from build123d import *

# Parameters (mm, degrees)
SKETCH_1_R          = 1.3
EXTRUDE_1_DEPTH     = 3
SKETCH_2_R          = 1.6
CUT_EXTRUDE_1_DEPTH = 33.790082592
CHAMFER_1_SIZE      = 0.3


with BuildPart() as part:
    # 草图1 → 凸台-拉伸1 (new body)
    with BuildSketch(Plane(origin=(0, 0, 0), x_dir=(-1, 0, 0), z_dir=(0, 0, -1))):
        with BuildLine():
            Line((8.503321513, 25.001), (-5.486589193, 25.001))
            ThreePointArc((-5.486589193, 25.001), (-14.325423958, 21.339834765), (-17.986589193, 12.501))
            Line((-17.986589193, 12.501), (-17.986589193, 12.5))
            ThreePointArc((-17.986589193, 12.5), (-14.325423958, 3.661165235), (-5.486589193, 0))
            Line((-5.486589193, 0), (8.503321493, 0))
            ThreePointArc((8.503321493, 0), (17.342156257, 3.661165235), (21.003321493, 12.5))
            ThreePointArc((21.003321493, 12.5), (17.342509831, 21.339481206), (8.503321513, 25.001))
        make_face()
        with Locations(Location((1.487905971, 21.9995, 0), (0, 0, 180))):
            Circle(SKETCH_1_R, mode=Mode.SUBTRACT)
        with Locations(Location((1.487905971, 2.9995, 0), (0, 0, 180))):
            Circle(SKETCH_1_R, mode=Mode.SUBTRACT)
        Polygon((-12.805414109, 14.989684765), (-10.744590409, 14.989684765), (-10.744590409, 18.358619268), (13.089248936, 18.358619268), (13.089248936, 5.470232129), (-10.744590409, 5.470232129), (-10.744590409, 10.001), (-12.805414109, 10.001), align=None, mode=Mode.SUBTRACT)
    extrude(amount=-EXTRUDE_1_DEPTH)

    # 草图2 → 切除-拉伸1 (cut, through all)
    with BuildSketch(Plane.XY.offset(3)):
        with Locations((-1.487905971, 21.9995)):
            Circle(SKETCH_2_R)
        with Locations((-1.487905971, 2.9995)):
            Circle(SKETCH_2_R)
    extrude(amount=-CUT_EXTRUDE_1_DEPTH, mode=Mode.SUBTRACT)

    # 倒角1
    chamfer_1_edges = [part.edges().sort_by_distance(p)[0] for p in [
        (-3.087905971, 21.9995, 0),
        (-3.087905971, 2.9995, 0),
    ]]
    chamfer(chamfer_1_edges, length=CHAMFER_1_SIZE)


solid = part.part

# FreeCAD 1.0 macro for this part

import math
import FreeCAD as App
import Part
import Sketcher

V = App.Vector


def edges_at(feature, points):
    """Names of the edges that pass closest to the given points."""
    edges = feature.Shape.Edges
    near = lambda p: min(range(len(edges)), key=lambda i: edges[i].distToShape(Part.Vertex(*p))[0])
    return sorted({f"Edge{near(p) + 1}" for p in points})

doc = App.newDocument("Part")
params = doc.addObject("Spreadsheet::Sheet", "Params")
for row, (alias, value) in enumerate([
    ("sketch1_diameter", "2.6 mm"),
    ("sketch1_radius", "12.5 mm"),
    ("pad1_length", "3 mm"),
    ("sketch2_diameter", "3.2 mm"),
    ("chamfer_size", "0.3 mm"),
], start=1):
    params.set(f"A{row}", alias)
    params.set(f"B{row}", "=" + value)
    params.setAlias(f"B{row}", alias)

body = doc.addObject("PartDesign::Body", "Body")

# Sketch on XY plane
sketch1 = body.newObject("Sketcher::SketchObject", "Sketch")
sketch1.AttachmentSupport = (doc.getObject("XY_Plane"), [""])
sketch1.MapMode = "FlatFace"
sketch1.addGeometry([
    Part.LineSegment(V(-8.503322, 25.001, 0), V(5.486589, 25.001, 0)),  # 0
    Part.ArcOfCircle(Part.Circle(V(5.486589, 12.501, 0), V(0, 0, 1), 12.5), math.radians(0), math.radians(90)),  # 1
    Part.LineSegment(V(17.986589, 12.501, 0), V(17.986589, 12.5, 0)),  # 2
    Part.ArcOfCircle(Part.Circle(V(5.486589, 12.5, 0), V(0, 0, 1), 12.5), math.radians(-90), math.radians(0)),  # 3
    Part.LineSegment(V(5.486589, 0, 0), V(-8.503321, 0, 0)),  # 4
    Part.ArcOfCircle(Part.Circle(V(-8.503321, 12.5, 0), V(0, 0, 1), 12.5), math.radians(-180), math.radians(-90)),  # 5
    Part.ArcOfCircle(Part.Circle(V(-8.503322, 12.501, 0), V(0, 0, 1), 12.5), math.radians(90), math.radians(180.004584)),  # 6
    Part.Circle(V(-1.487906, 2.9995, 0), V(0, 0, 1), 1.3),  # 7
    Part.LineSegment(V(12.805414, 10.001, 0), V(12.805414, 14.989685, 0)),  # 8
    Part.LineSegment(V(12.805414, 14.989685, 0), V(10.74459, 14.989685, 0)),  # 9
    Part.LineSegment(V(10.74459, 14.989685, 0), V(10.74459, 18.358619, 0)),  # 10
    Part.LineSegment(V(10.74459, 18.358619, 0), V(-13.089249, 18.358619, 0)),  # 11
    Part.LineSegment(V(-13.089249, 18.358619, 0), V(-13.089249, 5.470232, 0)),  # 12
    Part.LineSegment(V(-13.089249, 5.470232, 0), V(10.74459, 5.470232, 0)),  # 13
    Part.LineSegment(V(10.74459, 5.470232, 0), V(10.74459, 10.001, 0)),  # 14
    Part.LineSegment(V(10.74459, 10.001, 0), V(12.805414, 10.001, 0)),  # 15
    Part.Circle(V(-1.487906, 21.9995, 0), V(0, 0, 1), 1.3),  # 16
], False)
sketch1.addConstraint([
    Sketcher.Constraint("Tangent", 0, 2, 1, 2),
    Sketcher.Constraint("Tangent", 1, 1, 2, 1),
    Sketcher.Constraint("Coincident", 2, 2, 3, 2),
    Sketcher.Constraint("Tangent", 3, 1, 4, 1),
    Sketcher.Constraint("Tangent", 4, 2, 5, 2),
    Sketcher.Constraint("Coincident", 5, 1, 6, 2),
    Sketcher.Constraint("Tangent", 6, 1, 0, 1),
    Sketcher.Constraint("Coincident", 8, 2, 9, 1),
    Sketcher.Constraint("Coincident", 9, 2, 10, 1),
    Sketcher.Constraint("Coincident", 10, 2, 11, 1),
    Sketcher.Constraint("Coincident", 11, 2, 12, 1),
    Sketcher.Constraint("Coincident", 12, 2, 13, 1),
    Sketcher.Constraint("Coincident", 13, 2, 14, 1),
    Sketcher.Constraint("Coincident", 14, 2, 15, 1),
    Sketcher.Constraint("Coincident", 15, 2, 8, 1),
    Sketcher.Constraint("Horizontal", 0),
    Sketcher.Constraint("Horizontal", 4),
    Sketcher.Constraint("Vertical", 8),
    Sketcher.Constraint("Horizontal", 9),
    Sketcher.Constraint("Vertical", 10),
    Sketcher.Constraint("Horizontal", 11),
    Sketcher.Constraint("Vertical", 12),
    Sketcher.Constraint("Horizontal", 13),
    Sketcher.Constraint("Vertical", 14),
    Sketcher.Constraint("Horizontal", 15),
    Sketcher.Constraint("Equal", 1, 3),
    Sketcher.Constraint("Equal", 3, 5),
    Sketcher.Constraint("Equal", 5, 6),
    Sketcher.Constraint("Equal", 7, 16),
    Sketcher.Constraint("PointOnObject", 3, 1, -1),
    Sketcher.Constraint("Horizontal", 6, 3, 1, 1),
    Sketcher.Constraint("Horizontal", 5, 3, 2, 2),
    Sketcher.Constraint("Horizontal", 2, 2, 5, 1),
    Sketcher.Constraint("Vertical", 7, 3, 16, 3),
    Sketcher.Constraint("Vertical", 10, 2, 13, 2),
    Sketcher.Constraint("Diameter", 7, 2.6),
    Sketcher.Constraint("Radius", 1, 12.5),
    Sketcher.Constraint("DistanceY", 7, 3, 16, 3, 19.0),
    Sketcher.Constraint("DistanceY", 14, 2, 1, 3, 2.5),
    Sketcher.Constraint("DistanceY", 2, 2, 2, 1, 0.001),
    Sketcher.Constraint("DistanceX", 1, 3, 9, 2, 5.258001),
    Sketcher.Constraint("DistanceX", 0, 1, 0, 2, 13.989911),
    Sketcher.Constraint("DistanceX", 11, 2, 11, 1, 23.833839),
    Sketcher.Constraint("DistanceY", -1, 1, 7, 3, 2.9995),
    Sketcher.Constraint("DistanceX", 9, 2, 9, 1, 2.060824),
    Sketcher.Constraint("DistanceY", 8, 1, 8, 2, 4.988685),
    Sketcher.Constraint("DistanceY", 10, 1, 10, 2, 3.368935),
    Sketcher.Constraint("DistanceY", 12, 2, 12, 1, 12.888387),
    Sketcher.Constraint("DistanceX", -1, 1, 1, 3, 5.486589),
    Sketcher.Constraint("DistanceX", 7, 3, -1, 1, 1.487906),
])
sketch1.setExpression("Constraints[35]", "Params.sketch1_diameter")
sketch1.setExpression("Constraints[36]", "Params.sketch1_radius")
pad1 = body.newObject("PartDesign::Pad", "Pad")
pad1.Profile = sketch1
pad1.setExpression("Length", "Params.pad1_length")

# Sketch on XY plane
sketch2 = body.newObject("Sketcher::SketchObject", "Sketch001")
sketch2.AttachmentSupport = (doc.getObject("XY_Plane"), [""])
sketch2.MapMode = "FlatFace"
sketch2.AttachmentOffset = App.Placement(V(0, 0, 3), App.Rotation())
sketch2.addGeometry([
    Part.Circle(V(-1.487906, 21.9995, 0), V(0, 0, 1), 1.6),
    Part.Circle(V(-1.487906, 2.9995, 0), V(0, 0, 1), 1.6),
], False)
sketch2.addConstraint([
    Sketcher.Constraint("Equal", 0, 1),
    Sketcher.Constraint("Vertical", 0, 3, 1, 3),
    Sketcher.Constraint("Diameter", 0, 3.2),
    Sketcher.Constraint("DistanceY", 1, 3, 0, 3, 19.0),
    Sketcher.Constraint("DistanceY", -1, 1, 0, 3, 21.9995),
    Sketcher.Constraint("DistanceX", 0, 3, -1, 1, 1.487906),
])
sketch2.setExpression("Constraints[2]", "Params.sketch2_diameter")
pocket1 = body.newObject("PartDesign::Pocket", "Pocket")
pocket1.Profile = sketch2
pocket1.Type = "ThroughAll"
doc.recompute()

chamfer = body.newObject("PartDesign::Chamfer", "Chamfer")
chamfer.Base = (pocket1, edges_at(pocket1, [(-3.088, 22, 0), (-3.088, 2.999, 0)]))
chamfer.setExpression("Size", "Params.chamfer_size")

doc.recompute()
